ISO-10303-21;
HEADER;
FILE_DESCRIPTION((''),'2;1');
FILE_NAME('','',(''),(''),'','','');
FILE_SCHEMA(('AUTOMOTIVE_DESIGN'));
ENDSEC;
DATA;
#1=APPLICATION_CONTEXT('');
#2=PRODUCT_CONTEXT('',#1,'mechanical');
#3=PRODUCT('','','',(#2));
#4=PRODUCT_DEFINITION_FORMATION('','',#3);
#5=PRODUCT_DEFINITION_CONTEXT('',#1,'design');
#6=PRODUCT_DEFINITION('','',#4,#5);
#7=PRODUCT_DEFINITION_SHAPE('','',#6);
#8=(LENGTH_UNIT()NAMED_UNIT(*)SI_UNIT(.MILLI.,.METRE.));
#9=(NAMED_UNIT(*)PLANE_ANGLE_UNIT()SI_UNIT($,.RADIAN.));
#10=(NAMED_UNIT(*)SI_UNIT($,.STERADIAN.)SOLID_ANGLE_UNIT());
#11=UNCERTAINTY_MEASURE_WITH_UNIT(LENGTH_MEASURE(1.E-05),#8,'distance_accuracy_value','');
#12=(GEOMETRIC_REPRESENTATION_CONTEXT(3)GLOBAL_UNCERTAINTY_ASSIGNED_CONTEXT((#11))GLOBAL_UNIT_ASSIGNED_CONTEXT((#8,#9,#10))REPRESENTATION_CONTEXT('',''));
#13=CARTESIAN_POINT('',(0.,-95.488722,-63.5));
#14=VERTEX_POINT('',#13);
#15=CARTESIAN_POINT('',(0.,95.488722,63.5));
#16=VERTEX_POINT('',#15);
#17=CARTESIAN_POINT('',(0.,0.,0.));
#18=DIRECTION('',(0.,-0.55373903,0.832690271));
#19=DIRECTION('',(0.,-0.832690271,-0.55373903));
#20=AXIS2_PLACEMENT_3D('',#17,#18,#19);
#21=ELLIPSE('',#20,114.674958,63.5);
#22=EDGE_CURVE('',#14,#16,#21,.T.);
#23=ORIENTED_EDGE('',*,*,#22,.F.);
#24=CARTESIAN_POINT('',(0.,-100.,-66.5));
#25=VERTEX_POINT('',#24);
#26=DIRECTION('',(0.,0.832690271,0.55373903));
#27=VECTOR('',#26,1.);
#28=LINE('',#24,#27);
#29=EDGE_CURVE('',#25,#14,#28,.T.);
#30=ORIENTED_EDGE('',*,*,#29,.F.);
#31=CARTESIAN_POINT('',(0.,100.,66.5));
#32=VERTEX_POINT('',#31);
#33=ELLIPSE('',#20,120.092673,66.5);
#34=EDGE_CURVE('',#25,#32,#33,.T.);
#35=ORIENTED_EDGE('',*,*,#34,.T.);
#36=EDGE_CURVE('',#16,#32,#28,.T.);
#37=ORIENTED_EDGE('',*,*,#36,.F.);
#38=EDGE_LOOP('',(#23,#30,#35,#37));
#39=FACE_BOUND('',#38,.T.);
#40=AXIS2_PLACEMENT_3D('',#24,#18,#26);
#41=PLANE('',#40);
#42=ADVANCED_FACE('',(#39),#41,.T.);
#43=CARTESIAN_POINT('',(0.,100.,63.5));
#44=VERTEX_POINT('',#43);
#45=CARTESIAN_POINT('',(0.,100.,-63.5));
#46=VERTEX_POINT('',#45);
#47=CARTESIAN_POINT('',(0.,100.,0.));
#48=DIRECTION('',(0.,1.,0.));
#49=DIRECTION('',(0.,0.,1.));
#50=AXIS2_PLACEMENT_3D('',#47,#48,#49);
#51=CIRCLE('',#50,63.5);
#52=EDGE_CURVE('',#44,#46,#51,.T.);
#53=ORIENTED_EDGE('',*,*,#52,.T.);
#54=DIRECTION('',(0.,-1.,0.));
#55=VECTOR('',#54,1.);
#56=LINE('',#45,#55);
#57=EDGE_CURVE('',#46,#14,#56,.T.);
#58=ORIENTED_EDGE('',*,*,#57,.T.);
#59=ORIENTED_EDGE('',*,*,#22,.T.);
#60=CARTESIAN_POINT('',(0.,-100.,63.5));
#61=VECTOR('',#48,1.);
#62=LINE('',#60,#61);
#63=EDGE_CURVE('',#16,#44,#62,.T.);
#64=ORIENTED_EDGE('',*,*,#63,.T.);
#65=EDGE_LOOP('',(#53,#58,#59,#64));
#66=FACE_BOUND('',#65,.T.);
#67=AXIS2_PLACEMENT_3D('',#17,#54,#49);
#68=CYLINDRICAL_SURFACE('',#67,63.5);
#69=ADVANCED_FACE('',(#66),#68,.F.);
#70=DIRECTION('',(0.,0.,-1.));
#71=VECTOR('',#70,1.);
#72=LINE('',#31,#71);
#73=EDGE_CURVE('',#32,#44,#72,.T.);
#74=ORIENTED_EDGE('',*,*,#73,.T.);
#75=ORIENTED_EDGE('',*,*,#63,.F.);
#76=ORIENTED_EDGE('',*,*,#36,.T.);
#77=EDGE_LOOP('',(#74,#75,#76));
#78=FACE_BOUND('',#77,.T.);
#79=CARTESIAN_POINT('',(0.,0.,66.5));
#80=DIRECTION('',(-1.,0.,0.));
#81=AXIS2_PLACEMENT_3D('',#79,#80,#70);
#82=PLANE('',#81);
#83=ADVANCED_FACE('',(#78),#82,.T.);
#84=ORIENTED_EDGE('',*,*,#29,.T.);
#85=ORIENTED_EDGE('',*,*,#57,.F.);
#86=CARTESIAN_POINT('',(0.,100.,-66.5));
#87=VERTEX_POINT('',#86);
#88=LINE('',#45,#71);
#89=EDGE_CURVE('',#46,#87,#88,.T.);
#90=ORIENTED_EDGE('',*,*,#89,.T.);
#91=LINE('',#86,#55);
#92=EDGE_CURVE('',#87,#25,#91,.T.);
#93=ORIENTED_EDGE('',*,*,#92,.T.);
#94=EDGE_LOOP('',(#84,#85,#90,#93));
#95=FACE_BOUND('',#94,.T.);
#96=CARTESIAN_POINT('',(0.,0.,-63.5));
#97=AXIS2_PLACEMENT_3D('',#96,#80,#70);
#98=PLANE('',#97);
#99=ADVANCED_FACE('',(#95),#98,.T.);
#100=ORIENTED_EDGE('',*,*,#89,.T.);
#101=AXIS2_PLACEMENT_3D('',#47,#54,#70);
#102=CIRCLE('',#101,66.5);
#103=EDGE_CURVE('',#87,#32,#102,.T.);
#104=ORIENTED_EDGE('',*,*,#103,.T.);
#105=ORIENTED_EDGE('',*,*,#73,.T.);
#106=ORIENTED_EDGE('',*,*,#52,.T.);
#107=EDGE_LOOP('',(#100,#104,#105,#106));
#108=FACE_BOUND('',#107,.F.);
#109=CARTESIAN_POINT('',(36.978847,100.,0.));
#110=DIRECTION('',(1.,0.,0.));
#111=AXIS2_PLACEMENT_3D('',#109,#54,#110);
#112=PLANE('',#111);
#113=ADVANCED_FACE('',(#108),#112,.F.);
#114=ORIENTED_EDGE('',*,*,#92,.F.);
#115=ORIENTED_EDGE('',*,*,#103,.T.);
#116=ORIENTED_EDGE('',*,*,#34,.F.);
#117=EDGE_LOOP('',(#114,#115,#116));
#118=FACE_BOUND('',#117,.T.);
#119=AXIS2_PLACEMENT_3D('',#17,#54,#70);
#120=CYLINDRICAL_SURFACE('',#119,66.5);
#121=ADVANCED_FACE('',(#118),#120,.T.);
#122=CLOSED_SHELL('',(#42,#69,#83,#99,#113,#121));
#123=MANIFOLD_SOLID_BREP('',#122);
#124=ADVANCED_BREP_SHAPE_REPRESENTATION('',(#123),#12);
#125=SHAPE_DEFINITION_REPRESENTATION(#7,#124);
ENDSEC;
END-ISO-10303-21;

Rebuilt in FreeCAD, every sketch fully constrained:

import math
import FreeCAD as App
import Part
import Sketcher
from FreeCAD import Vector
Q = App.Units.Quantity


def add_polygon(sketch, points):
    """Adds a closed chain of lines whose ends are joined by coincident constraints."""
    first, n = sketch.GeometryCount, len(points)
    for a, b in zip(points, points[1:] + points[:1]):
        sketch.addGeometry(Part.LineSegment(App.Vector(*a, 0), App.Vector(*b, 0)), False)
    for i in range(n):
        sketch.addConstraint(Sketcher.Constraint("Coincident", first + i, 2, first + (i + 1) % n, 1))

doc = App.newDocument("Part")
params = doc.addObject("Spreadsheet::Sheet", "Params")
for row, (alias, value) in enumerate([
    ("sketch1_radius", "63.5 mm"),
    ("sketch1_radius2", "66.5 mm"),
    ("pad1_length", "200 mm"),
    ("sketch2_width", "200 mm"),
], start=1):
    params.set(f"A{row}", alias)
    params.set(f"B{row}", "=" + value)
    params.setAlias(f"B{row}", alias)

body = doc.addObject("PartDesign::Body", "Body")

sketch1 = body.newObject("Sketcher::SketchObject", "Sketch")
sketch1.AttachmentSupport = (doc.getObject("XZ_Plane"), [""])
sketch1.MapMode = "FlatFace"
sketch1.addGeometry([
    Part.ArcOfCircle(Part.Circle(Vector(0, 0, 0), Vector(0, 0, 1), 63.5), math.radians(-90), math.radians(90)),
    Part.LineSegment(Vector(0, -63.5, 0), Vector(0, -66.5, 0)),
    Part.ArcOfCircle(Part.Circle(Vector(0, 0, 0), Vector(0, 0, 1), 66.5), math.radians(-90), math.radians(90)),
    Part.LineSegment(Vector(0, 66.5, 0), Vector(0, 63.5, 0)),
], False)
sketch1.addConstraint([
    Sketcher.Constraint("Coincident", 0, 1, 1, 1),
    Sketcher.Constraint("Coincident", 1, 2, 2, 1),
    Sketcher.Constraint("Coincident", 2, 2, 3, 1),
    Sketcher.Constraint("Coincident", 3, 2, 0, 2),
    Sketcher.Constraint("Vertical", 1),
    Sketcher.Constraint("Vertical", 3),
    Sketcher.Constraint("Coincident", 0, 3, -1, 1),
    Sketcher.Constraint("Coincident", 2, 3, -1, 1),
    Sketcher.Constraint("PointOnObject", 0, 1, -2),
    Sketcher.Constraint("PointOnObject", 2, 2, -2),
    Sketcher.Constraint("Radius", 0, Q("63.5 mm")),
    Sketcher.Constraint("Radius", 2, Q("66.5 mm")),
])
sketch1.setExpression("Constraints[10]", "Params.sketch1_radius")
sketch1.setExpression("Constraints[11]", "Params.sketch1_radius2")
pad1 = body.newObject("PartDesign::Pad", "Pad")
pad1.Profile = sketch1
pad1.setExpression("Length", "Params.pad1_length")
pad1.Midplane = True

sketch2 = body.newObject("Sketcher::SketchObject", "Sketch001")
sketch2.AttachmentSupport = (doc.getObject("YZ_Plane"), [""])
sketch2.MapMode = "FlatFace"
add_polygon(sketch2, [(-100, 78), (-100, -66), (100, 66), (100, 78)])
sketch2.addConstraint([
    Sketcher.Constraint("Vertical", 0),
    Sketcher.Constraint("Vertical", 2),
    Sketcher.Constraint("Horizontal", 3),
    Sketcher.Constraint("Symmetric", 0, 2, 1, 2, -1, 1),
    Sketcher.Constraint("DistanceX", 3, 2, 3, 1, Q("200 mm")),
    Sketcher.Constraint("DistanceY", 0, 2, 1, 2, Q("133 mm")),
    Sketcher.Constraint("DistanceY", 2, 1, 2, 2, Q("11.940242 mm")),
])
sketch2.setExpression("Constraints[8]", "Params.sketch2_width")
pocket1 = body.newObject("PartDesign::Pocket", "Pocket")
pocket1.Profile = sketch2
pocket1.Type = "ThroughAll"
pocket1.Reversed = True

doc.recompute()
